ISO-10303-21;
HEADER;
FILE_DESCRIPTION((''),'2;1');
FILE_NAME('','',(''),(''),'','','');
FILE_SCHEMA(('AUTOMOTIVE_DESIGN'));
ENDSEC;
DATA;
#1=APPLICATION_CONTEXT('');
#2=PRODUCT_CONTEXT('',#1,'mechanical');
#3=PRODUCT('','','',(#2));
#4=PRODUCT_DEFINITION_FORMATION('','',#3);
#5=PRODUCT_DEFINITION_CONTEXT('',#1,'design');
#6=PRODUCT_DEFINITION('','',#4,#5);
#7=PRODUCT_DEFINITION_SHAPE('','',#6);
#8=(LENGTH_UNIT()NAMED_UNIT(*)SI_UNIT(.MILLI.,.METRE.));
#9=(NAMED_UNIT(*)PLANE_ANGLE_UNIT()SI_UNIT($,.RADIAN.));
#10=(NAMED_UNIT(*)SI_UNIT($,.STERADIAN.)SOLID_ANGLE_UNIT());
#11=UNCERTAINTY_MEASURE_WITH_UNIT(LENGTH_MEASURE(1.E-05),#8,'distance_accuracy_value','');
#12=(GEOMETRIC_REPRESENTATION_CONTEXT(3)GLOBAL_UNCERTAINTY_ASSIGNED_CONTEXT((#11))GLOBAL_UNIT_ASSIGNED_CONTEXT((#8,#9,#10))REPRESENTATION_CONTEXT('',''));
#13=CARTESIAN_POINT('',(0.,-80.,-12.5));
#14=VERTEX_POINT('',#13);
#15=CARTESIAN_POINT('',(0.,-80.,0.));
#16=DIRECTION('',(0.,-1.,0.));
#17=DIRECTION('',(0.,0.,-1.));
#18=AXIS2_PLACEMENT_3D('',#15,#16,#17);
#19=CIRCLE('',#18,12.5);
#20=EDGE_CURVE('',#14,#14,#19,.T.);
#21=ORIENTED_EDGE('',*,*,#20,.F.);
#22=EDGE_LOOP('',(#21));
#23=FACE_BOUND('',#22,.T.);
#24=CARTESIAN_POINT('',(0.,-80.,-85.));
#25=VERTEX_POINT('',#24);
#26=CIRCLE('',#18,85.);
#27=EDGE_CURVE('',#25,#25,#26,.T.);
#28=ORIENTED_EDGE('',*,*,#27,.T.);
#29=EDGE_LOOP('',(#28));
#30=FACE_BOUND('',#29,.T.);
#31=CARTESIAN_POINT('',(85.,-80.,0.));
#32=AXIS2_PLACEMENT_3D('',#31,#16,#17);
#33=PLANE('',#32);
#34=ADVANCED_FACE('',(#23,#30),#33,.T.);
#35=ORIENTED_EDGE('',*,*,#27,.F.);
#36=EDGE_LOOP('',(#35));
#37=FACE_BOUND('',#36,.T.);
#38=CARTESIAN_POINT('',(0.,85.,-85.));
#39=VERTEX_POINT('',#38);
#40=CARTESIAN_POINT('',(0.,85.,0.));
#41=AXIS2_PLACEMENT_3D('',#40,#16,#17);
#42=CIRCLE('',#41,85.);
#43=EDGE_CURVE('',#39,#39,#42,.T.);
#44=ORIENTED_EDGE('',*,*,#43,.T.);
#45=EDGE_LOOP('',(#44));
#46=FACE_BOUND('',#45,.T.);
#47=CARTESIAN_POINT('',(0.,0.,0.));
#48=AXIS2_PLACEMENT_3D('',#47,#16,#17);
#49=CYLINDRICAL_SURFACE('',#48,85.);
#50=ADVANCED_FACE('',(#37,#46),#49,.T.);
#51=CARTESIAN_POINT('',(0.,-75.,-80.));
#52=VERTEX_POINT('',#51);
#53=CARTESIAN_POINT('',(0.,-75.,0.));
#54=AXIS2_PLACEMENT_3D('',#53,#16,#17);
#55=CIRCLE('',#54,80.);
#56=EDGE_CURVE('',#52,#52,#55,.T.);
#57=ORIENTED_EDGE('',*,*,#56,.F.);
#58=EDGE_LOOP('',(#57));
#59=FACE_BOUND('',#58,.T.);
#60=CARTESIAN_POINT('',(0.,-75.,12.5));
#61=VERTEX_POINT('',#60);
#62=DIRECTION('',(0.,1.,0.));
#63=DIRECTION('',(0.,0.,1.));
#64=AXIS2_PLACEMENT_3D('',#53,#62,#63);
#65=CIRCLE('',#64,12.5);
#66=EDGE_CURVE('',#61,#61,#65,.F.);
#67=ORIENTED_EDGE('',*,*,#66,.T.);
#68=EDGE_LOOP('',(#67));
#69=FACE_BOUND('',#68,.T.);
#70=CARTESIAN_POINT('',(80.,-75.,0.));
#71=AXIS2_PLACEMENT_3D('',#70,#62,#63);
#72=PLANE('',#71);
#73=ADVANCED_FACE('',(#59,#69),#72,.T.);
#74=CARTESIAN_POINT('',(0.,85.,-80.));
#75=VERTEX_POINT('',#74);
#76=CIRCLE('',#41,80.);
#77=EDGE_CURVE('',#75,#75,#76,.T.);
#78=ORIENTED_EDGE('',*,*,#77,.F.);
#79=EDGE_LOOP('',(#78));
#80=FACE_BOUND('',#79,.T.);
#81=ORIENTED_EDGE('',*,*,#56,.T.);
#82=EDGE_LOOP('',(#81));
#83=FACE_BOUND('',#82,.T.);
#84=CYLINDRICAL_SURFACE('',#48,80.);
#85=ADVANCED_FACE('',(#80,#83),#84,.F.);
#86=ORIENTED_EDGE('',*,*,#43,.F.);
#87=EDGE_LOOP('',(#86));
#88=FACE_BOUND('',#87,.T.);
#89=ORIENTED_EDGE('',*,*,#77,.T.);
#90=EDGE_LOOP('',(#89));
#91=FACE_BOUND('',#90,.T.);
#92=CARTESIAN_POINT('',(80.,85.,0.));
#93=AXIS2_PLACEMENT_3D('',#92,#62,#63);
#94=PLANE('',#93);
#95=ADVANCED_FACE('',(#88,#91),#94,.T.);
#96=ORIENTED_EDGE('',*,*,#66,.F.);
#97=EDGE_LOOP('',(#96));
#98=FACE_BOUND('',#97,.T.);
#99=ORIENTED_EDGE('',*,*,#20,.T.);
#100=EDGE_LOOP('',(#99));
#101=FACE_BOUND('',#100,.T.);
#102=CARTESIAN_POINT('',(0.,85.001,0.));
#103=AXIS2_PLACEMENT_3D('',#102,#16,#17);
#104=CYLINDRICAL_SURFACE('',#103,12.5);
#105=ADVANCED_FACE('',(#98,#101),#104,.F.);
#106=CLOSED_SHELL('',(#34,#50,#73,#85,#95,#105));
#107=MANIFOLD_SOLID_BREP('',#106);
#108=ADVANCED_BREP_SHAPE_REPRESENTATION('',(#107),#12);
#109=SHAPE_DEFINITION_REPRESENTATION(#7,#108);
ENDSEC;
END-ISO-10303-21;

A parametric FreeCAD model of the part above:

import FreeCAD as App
import Part
import Sketcher

V = App.Vector

doc = App.newDocument("Part")
body = doc.addObject("PartDesign::Body", "Body")

# Sketch on XY plane
sketch1 = doc.addObject("Sketcher::SketchObject", "Sketch")
body.addObject(sketch1)
sketch1.AttachmentSupport = (doc.XY_Plane, [""])
sketch1.MapMode = "FlatFace"
sketch1.addGeometry([
    Part.LineSegment(V(0, -80, 0), V(85, -80, 0)),  # 0
    Part.LineSegment(V(85, -80, 0), V(85, 85, 0)),  # 1
    Part.LineSegment(V(85, 85, 0), V(80, 85, 0)),  # 2
    Part.LineSegment(V(80, 85, 0), V(80, -75, 0)),  # 3
    Part.LineSegment(V(80, -75, 0), V(0, -75, 0)),  # 4
    Part.LineSegment(V(0, -75, 0), V(0, -80, 0)),  # 5
], False)
sketch1.addConstraint([
    Sketcher.Constraint("Coincident", 0, 2, 1, 1),
    Sketcher.Constraint("Coincident", 1, 2, 2, 1),
    Sketcher.Constraint("Coincident", 2, 2, 3, 1),
    Sketcher.Constraint("Coincident", 3, 2, 4, 1),
    Sketcher.Constraint("Coincident", 4, 2, 5, 1),
    Sketcher.Constraint("Coincident", 5, 2, 0, 1),
    Sketcher.Constraint("Horizontal", 0),
    Sketcher.Constraint("Vertical", 1),
    Sketcher.Constraint("Horizontal", 2),
    Sketcher.Constraint("Vertical", 3),
    Sketcher.Constraint("Horizontal", 4),
    Sketcher.Constraint("Vertical", 5),
    Sketcher.Constraint("PointOnObject", 4, 2, -2),
    Sketcher.Constraint("Equal", 2, 5),
    Sketcher.Constraint("DistanceX", 0, 1, 0, 2, 85.0),
    Sketcher.Constraint("DistanceX", 2, 2, 2, 1, 5.0),
    Sketcher.Constraint("DistanceY", 1, 1, 1, 2, 165.0),
    Sketcher.Constraint("DistanceY", 0, 2, -1, 1, 80.0),
])
revolution = doc.addObject("PartDesign::Revolution", "Revolution")
body.addObject(revolution)
revolution.Profile = sketch1
revolution.ReferenceAxis = (sketch1, ["V_Axis"])
revolution.Angle = 360

# Sketch on XZ plane
sketch2 = doc.addObject("Sketcher::SketchObject", "Sketch001")
body.addObject(sketch2)
sketch2.AttachmentSupport = (doc.XZ_Plane, [""])
sketch2.MapMode = "FlatFace"
sketch2.AttachmentOffset = App.Placement(V(0, 0, 80), App.Rotation())
sketch2.addGeometry(Part.Circle(V(0, 0, 0), V(0, 0, 1), 12), False)
sketch2.addConstraint([
    Sketcher.Constraint("Coincident", 0, 3, -1, 1),
    Sketcher.Constraint("Diameter", 0, 25.0),
])
pocket1 = doc.addObject("PartDesign::Pocket", "Pocket")
body.addObject(pocket1)
pocket1.Profile = sketch2
pocket1.Type = "UpToFirst"

doc.recompute()
